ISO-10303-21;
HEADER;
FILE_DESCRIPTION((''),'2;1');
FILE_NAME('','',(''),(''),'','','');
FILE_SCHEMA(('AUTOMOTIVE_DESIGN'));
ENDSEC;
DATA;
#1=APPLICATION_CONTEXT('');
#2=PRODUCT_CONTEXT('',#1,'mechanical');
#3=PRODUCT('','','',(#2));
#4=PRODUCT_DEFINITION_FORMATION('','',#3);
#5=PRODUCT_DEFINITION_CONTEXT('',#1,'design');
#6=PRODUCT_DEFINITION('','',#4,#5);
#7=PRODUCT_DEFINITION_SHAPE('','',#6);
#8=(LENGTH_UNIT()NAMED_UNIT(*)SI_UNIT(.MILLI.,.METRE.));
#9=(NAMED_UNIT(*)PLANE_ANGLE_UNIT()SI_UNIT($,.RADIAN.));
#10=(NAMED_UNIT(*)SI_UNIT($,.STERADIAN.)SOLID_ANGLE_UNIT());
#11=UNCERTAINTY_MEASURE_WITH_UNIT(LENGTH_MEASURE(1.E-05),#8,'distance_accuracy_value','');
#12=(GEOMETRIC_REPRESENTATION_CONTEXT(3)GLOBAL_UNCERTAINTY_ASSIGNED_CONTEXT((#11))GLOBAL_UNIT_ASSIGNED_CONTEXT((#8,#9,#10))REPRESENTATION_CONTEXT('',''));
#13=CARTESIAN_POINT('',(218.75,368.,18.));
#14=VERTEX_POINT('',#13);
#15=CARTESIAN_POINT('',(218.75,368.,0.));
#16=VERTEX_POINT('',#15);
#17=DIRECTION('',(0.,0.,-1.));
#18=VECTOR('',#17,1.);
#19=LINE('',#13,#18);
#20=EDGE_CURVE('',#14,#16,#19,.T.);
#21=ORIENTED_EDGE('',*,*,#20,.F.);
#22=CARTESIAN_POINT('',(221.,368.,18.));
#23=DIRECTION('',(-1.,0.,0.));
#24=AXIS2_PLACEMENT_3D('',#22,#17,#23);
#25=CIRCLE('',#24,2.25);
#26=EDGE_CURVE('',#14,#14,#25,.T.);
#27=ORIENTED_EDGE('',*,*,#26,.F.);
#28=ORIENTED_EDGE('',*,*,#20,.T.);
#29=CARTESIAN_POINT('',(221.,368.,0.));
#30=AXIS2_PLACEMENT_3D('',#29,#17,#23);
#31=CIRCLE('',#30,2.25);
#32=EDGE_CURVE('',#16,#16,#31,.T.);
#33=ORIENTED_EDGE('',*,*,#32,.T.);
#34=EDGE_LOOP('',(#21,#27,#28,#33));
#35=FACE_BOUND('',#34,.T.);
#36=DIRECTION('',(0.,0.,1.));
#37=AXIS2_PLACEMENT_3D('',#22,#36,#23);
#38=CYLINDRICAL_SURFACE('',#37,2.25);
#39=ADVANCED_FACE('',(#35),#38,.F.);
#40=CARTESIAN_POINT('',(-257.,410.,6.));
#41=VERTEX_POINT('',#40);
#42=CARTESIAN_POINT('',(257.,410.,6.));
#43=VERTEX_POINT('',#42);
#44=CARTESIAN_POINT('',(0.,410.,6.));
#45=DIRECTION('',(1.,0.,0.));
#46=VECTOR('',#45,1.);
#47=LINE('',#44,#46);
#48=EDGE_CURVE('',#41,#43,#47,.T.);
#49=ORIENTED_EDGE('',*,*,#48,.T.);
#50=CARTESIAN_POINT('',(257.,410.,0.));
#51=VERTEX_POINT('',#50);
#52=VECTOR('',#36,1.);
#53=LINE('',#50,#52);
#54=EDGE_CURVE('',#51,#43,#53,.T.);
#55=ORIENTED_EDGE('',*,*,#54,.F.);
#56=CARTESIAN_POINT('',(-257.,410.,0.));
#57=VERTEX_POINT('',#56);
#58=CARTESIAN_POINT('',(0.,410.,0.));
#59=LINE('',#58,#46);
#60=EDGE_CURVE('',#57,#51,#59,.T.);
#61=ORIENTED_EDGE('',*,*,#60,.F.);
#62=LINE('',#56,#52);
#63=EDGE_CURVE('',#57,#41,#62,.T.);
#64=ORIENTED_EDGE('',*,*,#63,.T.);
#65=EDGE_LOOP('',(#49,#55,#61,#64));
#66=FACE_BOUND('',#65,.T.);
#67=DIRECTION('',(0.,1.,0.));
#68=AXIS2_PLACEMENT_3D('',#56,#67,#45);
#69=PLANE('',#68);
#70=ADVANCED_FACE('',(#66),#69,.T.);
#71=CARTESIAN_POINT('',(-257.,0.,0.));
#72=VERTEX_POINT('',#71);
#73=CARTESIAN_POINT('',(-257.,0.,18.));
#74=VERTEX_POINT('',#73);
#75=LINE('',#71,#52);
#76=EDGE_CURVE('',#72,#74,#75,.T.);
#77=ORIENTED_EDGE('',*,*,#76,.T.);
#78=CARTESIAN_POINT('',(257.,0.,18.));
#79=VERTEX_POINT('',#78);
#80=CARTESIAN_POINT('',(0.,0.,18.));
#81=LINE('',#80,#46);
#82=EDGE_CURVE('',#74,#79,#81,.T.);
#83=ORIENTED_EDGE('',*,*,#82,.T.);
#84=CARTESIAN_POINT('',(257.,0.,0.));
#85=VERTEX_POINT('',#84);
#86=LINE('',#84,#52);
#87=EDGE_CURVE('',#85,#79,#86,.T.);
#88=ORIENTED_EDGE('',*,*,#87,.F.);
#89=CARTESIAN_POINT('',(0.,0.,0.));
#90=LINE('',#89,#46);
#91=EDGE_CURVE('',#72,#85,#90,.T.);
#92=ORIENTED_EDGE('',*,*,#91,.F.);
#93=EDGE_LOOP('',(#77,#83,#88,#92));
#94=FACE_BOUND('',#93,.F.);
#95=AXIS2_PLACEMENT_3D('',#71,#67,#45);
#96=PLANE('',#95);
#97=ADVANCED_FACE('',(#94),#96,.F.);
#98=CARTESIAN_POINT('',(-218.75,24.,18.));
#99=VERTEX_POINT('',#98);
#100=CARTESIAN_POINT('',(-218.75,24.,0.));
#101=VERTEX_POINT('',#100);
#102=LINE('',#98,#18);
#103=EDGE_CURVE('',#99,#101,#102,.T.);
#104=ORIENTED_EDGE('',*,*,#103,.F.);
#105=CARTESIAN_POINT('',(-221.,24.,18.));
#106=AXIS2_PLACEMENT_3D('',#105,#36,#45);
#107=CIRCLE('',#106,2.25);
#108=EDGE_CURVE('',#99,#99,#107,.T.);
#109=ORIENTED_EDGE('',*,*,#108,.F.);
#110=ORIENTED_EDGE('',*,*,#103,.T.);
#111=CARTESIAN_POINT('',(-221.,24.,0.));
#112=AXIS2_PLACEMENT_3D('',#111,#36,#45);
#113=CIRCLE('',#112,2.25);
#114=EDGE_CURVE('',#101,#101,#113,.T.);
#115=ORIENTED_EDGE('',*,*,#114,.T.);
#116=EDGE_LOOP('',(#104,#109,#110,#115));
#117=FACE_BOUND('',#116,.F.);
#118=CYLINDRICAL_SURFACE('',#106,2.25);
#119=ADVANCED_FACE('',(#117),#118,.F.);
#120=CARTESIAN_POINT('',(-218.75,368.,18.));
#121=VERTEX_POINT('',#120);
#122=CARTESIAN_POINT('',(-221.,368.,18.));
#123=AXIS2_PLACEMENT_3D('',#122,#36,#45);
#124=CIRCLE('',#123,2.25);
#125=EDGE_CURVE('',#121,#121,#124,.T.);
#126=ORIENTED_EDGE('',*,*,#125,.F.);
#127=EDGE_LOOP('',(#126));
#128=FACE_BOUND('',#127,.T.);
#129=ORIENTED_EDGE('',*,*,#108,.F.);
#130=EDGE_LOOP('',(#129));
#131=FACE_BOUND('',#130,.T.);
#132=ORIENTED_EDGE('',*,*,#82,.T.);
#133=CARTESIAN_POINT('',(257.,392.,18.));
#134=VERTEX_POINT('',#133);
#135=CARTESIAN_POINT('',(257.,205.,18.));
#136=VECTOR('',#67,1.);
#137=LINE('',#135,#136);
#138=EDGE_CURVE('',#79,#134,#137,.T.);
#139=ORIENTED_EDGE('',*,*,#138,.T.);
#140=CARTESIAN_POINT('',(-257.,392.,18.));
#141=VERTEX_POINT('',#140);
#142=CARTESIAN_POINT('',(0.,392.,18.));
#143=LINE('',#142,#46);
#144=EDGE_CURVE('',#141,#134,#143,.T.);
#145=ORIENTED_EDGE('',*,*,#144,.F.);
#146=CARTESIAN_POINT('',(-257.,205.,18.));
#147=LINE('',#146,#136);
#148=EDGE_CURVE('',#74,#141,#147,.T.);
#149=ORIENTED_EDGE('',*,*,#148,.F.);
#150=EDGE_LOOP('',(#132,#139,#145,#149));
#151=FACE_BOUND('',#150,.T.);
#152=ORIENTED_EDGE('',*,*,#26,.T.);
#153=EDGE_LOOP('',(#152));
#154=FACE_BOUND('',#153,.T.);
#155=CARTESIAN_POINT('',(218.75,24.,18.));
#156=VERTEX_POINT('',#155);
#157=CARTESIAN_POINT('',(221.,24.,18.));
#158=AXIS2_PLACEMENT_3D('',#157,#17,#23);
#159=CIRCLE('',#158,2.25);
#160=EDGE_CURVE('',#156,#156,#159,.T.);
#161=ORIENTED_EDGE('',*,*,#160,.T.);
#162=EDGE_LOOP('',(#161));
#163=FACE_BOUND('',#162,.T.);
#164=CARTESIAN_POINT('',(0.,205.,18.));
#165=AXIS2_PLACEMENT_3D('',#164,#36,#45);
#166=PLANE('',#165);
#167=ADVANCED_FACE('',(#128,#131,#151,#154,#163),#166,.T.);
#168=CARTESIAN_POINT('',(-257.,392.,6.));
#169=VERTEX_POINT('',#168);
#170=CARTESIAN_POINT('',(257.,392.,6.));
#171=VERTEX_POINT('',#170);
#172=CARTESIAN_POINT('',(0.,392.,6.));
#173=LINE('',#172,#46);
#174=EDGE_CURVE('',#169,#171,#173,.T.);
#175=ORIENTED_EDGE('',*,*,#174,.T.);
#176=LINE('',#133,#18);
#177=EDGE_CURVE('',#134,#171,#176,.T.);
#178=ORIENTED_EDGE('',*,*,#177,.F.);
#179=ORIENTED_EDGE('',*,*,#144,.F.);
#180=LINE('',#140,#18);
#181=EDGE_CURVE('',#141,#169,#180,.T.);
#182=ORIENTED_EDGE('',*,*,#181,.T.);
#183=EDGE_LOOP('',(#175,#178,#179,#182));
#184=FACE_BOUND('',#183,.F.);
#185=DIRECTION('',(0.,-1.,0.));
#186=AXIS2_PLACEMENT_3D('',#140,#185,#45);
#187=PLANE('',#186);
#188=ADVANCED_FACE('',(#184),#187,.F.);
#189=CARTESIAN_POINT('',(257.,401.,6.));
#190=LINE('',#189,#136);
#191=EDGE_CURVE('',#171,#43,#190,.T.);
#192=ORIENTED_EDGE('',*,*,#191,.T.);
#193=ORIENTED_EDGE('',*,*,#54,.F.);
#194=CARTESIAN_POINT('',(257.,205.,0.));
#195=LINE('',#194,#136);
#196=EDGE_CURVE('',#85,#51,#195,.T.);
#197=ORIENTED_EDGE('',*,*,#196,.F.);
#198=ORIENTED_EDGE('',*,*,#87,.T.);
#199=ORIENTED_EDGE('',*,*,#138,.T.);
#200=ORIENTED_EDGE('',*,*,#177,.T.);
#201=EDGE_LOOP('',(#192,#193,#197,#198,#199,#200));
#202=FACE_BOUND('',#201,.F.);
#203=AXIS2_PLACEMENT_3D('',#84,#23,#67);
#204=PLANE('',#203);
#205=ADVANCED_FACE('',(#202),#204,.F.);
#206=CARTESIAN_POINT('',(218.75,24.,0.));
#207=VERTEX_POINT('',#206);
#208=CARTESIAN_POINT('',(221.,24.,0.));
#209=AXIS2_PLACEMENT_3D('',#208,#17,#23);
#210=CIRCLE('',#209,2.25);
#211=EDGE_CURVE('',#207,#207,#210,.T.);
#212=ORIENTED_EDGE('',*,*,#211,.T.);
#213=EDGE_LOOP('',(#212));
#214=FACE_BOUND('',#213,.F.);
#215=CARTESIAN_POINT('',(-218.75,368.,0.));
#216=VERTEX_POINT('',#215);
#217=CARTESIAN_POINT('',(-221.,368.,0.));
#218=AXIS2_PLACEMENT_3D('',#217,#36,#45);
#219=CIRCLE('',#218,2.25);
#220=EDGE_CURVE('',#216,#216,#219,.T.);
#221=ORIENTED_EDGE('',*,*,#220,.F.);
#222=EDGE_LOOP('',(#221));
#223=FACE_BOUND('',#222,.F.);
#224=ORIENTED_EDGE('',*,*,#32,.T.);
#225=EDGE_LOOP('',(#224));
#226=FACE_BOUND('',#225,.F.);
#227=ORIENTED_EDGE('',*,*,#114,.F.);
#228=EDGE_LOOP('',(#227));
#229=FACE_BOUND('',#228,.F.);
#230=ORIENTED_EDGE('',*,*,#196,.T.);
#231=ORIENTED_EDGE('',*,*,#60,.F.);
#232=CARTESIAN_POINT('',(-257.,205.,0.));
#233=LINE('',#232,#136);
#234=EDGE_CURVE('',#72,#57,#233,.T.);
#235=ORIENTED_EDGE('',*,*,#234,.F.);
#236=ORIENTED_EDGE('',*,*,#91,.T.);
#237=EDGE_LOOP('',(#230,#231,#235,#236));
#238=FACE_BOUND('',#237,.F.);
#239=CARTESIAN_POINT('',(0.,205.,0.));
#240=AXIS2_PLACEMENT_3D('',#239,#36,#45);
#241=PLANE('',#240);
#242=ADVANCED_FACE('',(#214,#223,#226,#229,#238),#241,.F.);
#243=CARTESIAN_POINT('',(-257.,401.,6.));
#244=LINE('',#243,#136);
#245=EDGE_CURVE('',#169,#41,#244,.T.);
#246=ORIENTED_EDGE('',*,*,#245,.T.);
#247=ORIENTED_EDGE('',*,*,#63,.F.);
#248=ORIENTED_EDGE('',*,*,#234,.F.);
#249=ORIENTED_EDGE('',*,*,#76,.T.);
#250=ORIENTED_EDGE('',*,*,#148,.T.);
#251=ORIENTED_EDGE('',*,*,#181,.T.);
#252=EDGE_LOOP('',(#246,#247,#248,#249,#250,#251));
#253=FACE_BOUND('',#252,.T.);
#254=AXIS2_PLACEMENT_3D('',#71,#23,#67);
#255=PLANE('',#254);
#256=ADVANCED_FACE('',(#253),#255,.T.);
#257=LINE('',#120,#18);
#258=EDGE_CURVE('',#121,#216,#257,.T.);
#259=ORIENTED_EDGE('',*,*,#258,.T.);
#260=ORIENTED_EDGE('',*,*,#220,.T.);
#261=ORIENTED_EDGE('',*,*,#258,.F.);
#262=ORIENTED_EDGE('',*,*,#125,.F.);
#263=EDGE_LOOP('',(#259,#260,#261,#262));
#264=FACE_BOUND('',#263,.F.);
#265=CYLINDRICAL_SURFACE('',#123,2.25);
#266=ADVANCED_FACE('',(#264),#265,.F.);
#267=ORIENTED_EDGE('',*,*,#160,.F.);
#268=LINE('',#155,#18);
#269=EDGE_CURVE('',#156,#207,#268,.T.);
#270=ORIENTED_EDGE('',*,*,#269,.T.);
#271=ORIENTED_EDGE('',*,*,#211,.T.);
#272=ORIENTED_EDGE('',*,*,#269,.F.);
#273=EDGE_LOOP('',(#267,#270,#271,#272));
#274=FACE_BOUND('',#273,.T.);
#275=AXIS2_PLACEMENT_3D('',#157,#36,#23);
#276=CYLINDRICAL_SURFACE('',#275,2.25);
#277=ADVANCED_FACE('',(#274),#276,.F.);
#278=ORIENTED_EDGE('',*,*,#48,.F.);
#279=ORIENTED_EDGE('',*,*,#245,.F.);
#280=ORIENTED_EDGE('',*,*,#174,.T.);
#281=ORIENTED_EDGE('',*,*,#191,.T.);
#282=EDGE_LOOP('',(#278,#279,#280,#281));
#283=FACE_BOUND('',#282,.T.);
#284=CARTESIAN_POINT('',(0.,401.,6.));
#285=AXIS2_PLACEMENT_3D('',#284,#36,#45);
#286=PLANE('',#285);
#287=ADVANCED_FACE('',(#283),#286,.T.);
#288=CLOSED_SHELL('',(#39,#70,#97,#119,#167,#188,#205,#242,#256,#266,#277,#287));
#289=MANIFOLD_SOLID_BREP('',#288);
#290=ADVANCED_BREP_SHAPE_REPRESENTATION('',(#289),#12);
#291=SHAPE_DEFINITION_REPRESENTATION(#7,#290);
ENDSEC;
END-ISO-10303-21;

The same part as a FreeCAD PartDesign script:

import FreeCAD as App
import Part
import Sketcher

V = App.Vector
Q = App.Units.Quantity


def add_polygon(sketch, points):
    """Adds a closed chain of lines whose ends are joined by coincident constraints."""
    first, n = sketch.GeometryCount, len(points)
    for a, b in zip(points, points[1:] + points[:1]):
        sketch.addGeometry(Part.LineSegment(App.Vector(*a, 0), App.Vector(*b, 0)), False)
    for i in range(n):
        sketch.addConstraint(Sketcher.Constraint("Coincident", first + i, 2, first + (i + 1) % n, 1))

doc = App.newDocument("Part")
body = doc.addObject("PartDesign::Body", "Body")

# Sketch on XY plane
sketch1 = body.newObject("Sketcher::SketchObject", "Sketch")
sketch1.AttachmentSupport = (doc.getObject("XY_Plane"), [""])
sketch1.MapMode = "FlatFace"
add_polygon(sketch1, [(-257, 410), (-257, 0), (257, 0), (257, 410)])  # lines 0-3
sketch1.addConstraint(Sketcher.Constraint("Vertical", 0))
sketch1.addConstraint(Sketcher.Constraint("Horizontal", 1))
sketch1.addConstraint(Sketcher.Constraint("Vertical", 2))
sketch1.addConstraint(Sketcher.Constraint("Horizontal", 3))
sketch1.addConstraint(Sketcher.Constraint("Symmetric", 0, 2, 1, 2, -1, 1))
sketch1.addConstraint(Sketcher.Constraint("DistanceX", 1, 1, 1, 2, Q("514 mm")))
sketch1.addConstraint(Sketcher.Constraint("DistanceY", 0, 2, 0, 1, Q("410 mm")))
pad1 = body.newObject("PartDesign::Pad", "Pad")
pad1.Profile = sketch1
pad1.Length = 18

# Sketch on XY plane
sketch2 = body.newObject("Sketcher::SketchObject", "Sketch001")
sketch2.AttachmentSupport = (doc.getObject("XY_Plane"), [""])
sketch2.MapMode = "FlatFace"
sketch2.AttachmentOffset = App.Placement(V(0, 0, 18), App.Rotation())
add_polygon(sketch2, [(-257, 410), (-257, 392), (257, 392), (257, 410)])  # lines 0-3
sketch2.addConstraint(Sketcher.Constraint("Vertical", 0))
sketch2.addConstraint(Sketcher.Constraint("Horizontal", 1))
sketch2.addConstraint(Sketcher.Constraint("Vertical", 2))
sketch2.addConstraint(Sketcher.Constraint("Horizontal", 3))
sketch2.addConstraint(Sketcher.Constraint("DistanceX", 1, 1, 1, 2, Q("514 mm")))
sketch2.addConstraint(Sketcher.Constraint("DistanceY", 0, 2, 0, 1, Q("18 mm")))
sketch2.addConstraint(Sketcher.Constraint("DistanceX", 0, 2, -1, 1, Q("257 mm")))
sketch2.addConstraint(Sketcher.Constraint("DistanceY", -1, 1, 0, 2, Q("392 mm")))
pocket1 = body.newObject("PartDesign::Pocket", "Pocket")
pocket1.Profile = sketch2
pocket1.Length = 12

# Sketch on XY plane
sketch3 = body.newObject("Sketcher::SketchObject", "Sketch002")
sketch3.AttachmentSupport = (doc.getObject("XY_Plane"), [""])
sketch3.MapMode = "FlatFace"
sketch3.AttachmentOffset = App.Placement(V(0, 0, 18), App.Rotation())
sketch3.addGeometry(Part.Circle(V(-221, 24, 0), V(0, 0, 1), 2.2), False)
sketch3.addGeometry(Part.Circle(V(-221, 368, 0), V(0, 0, 1), 2.2), False)
sketch3.addConstraint(Sketcher.Constraint("Equal", 0, 1))
sketch3.addConstraint(Sketcher.Constraint("Vertical", 0, 3, 1, 3))
sketch3.addConstraint(Sketcher.Constraint("Diameter", 0, Q("4.5 mm")))
sketch3.addConstraint(Sketcher.Constraint("DistanceX", 0, 3, -1, 1, Q("221 mm")))
sketch3.addConstraint(Sketcher.Constraint("DistanceY", -1, 1, 0, 3, Q("24 mm")))
sketch3.addConstraint(Sketcher.Constraint("DistanceY", -1, 1, 1, 3, Q("368 mm")))
pocket2 = body.newObject("PartDesign::Pocket", "Pocket001")
pocket2.Profile = sketch3
pocket2.Length = 18
doc.recompute()

mirrored = body.newObject("PartDesign::Mirrored", "Mirrored")
mirrored.Originals = [pocket2]
mirrored.MirrorPlane = (doc.getObject("YZ_Plane"), [""])
body.Tip = mirrored

doc.recompute()
